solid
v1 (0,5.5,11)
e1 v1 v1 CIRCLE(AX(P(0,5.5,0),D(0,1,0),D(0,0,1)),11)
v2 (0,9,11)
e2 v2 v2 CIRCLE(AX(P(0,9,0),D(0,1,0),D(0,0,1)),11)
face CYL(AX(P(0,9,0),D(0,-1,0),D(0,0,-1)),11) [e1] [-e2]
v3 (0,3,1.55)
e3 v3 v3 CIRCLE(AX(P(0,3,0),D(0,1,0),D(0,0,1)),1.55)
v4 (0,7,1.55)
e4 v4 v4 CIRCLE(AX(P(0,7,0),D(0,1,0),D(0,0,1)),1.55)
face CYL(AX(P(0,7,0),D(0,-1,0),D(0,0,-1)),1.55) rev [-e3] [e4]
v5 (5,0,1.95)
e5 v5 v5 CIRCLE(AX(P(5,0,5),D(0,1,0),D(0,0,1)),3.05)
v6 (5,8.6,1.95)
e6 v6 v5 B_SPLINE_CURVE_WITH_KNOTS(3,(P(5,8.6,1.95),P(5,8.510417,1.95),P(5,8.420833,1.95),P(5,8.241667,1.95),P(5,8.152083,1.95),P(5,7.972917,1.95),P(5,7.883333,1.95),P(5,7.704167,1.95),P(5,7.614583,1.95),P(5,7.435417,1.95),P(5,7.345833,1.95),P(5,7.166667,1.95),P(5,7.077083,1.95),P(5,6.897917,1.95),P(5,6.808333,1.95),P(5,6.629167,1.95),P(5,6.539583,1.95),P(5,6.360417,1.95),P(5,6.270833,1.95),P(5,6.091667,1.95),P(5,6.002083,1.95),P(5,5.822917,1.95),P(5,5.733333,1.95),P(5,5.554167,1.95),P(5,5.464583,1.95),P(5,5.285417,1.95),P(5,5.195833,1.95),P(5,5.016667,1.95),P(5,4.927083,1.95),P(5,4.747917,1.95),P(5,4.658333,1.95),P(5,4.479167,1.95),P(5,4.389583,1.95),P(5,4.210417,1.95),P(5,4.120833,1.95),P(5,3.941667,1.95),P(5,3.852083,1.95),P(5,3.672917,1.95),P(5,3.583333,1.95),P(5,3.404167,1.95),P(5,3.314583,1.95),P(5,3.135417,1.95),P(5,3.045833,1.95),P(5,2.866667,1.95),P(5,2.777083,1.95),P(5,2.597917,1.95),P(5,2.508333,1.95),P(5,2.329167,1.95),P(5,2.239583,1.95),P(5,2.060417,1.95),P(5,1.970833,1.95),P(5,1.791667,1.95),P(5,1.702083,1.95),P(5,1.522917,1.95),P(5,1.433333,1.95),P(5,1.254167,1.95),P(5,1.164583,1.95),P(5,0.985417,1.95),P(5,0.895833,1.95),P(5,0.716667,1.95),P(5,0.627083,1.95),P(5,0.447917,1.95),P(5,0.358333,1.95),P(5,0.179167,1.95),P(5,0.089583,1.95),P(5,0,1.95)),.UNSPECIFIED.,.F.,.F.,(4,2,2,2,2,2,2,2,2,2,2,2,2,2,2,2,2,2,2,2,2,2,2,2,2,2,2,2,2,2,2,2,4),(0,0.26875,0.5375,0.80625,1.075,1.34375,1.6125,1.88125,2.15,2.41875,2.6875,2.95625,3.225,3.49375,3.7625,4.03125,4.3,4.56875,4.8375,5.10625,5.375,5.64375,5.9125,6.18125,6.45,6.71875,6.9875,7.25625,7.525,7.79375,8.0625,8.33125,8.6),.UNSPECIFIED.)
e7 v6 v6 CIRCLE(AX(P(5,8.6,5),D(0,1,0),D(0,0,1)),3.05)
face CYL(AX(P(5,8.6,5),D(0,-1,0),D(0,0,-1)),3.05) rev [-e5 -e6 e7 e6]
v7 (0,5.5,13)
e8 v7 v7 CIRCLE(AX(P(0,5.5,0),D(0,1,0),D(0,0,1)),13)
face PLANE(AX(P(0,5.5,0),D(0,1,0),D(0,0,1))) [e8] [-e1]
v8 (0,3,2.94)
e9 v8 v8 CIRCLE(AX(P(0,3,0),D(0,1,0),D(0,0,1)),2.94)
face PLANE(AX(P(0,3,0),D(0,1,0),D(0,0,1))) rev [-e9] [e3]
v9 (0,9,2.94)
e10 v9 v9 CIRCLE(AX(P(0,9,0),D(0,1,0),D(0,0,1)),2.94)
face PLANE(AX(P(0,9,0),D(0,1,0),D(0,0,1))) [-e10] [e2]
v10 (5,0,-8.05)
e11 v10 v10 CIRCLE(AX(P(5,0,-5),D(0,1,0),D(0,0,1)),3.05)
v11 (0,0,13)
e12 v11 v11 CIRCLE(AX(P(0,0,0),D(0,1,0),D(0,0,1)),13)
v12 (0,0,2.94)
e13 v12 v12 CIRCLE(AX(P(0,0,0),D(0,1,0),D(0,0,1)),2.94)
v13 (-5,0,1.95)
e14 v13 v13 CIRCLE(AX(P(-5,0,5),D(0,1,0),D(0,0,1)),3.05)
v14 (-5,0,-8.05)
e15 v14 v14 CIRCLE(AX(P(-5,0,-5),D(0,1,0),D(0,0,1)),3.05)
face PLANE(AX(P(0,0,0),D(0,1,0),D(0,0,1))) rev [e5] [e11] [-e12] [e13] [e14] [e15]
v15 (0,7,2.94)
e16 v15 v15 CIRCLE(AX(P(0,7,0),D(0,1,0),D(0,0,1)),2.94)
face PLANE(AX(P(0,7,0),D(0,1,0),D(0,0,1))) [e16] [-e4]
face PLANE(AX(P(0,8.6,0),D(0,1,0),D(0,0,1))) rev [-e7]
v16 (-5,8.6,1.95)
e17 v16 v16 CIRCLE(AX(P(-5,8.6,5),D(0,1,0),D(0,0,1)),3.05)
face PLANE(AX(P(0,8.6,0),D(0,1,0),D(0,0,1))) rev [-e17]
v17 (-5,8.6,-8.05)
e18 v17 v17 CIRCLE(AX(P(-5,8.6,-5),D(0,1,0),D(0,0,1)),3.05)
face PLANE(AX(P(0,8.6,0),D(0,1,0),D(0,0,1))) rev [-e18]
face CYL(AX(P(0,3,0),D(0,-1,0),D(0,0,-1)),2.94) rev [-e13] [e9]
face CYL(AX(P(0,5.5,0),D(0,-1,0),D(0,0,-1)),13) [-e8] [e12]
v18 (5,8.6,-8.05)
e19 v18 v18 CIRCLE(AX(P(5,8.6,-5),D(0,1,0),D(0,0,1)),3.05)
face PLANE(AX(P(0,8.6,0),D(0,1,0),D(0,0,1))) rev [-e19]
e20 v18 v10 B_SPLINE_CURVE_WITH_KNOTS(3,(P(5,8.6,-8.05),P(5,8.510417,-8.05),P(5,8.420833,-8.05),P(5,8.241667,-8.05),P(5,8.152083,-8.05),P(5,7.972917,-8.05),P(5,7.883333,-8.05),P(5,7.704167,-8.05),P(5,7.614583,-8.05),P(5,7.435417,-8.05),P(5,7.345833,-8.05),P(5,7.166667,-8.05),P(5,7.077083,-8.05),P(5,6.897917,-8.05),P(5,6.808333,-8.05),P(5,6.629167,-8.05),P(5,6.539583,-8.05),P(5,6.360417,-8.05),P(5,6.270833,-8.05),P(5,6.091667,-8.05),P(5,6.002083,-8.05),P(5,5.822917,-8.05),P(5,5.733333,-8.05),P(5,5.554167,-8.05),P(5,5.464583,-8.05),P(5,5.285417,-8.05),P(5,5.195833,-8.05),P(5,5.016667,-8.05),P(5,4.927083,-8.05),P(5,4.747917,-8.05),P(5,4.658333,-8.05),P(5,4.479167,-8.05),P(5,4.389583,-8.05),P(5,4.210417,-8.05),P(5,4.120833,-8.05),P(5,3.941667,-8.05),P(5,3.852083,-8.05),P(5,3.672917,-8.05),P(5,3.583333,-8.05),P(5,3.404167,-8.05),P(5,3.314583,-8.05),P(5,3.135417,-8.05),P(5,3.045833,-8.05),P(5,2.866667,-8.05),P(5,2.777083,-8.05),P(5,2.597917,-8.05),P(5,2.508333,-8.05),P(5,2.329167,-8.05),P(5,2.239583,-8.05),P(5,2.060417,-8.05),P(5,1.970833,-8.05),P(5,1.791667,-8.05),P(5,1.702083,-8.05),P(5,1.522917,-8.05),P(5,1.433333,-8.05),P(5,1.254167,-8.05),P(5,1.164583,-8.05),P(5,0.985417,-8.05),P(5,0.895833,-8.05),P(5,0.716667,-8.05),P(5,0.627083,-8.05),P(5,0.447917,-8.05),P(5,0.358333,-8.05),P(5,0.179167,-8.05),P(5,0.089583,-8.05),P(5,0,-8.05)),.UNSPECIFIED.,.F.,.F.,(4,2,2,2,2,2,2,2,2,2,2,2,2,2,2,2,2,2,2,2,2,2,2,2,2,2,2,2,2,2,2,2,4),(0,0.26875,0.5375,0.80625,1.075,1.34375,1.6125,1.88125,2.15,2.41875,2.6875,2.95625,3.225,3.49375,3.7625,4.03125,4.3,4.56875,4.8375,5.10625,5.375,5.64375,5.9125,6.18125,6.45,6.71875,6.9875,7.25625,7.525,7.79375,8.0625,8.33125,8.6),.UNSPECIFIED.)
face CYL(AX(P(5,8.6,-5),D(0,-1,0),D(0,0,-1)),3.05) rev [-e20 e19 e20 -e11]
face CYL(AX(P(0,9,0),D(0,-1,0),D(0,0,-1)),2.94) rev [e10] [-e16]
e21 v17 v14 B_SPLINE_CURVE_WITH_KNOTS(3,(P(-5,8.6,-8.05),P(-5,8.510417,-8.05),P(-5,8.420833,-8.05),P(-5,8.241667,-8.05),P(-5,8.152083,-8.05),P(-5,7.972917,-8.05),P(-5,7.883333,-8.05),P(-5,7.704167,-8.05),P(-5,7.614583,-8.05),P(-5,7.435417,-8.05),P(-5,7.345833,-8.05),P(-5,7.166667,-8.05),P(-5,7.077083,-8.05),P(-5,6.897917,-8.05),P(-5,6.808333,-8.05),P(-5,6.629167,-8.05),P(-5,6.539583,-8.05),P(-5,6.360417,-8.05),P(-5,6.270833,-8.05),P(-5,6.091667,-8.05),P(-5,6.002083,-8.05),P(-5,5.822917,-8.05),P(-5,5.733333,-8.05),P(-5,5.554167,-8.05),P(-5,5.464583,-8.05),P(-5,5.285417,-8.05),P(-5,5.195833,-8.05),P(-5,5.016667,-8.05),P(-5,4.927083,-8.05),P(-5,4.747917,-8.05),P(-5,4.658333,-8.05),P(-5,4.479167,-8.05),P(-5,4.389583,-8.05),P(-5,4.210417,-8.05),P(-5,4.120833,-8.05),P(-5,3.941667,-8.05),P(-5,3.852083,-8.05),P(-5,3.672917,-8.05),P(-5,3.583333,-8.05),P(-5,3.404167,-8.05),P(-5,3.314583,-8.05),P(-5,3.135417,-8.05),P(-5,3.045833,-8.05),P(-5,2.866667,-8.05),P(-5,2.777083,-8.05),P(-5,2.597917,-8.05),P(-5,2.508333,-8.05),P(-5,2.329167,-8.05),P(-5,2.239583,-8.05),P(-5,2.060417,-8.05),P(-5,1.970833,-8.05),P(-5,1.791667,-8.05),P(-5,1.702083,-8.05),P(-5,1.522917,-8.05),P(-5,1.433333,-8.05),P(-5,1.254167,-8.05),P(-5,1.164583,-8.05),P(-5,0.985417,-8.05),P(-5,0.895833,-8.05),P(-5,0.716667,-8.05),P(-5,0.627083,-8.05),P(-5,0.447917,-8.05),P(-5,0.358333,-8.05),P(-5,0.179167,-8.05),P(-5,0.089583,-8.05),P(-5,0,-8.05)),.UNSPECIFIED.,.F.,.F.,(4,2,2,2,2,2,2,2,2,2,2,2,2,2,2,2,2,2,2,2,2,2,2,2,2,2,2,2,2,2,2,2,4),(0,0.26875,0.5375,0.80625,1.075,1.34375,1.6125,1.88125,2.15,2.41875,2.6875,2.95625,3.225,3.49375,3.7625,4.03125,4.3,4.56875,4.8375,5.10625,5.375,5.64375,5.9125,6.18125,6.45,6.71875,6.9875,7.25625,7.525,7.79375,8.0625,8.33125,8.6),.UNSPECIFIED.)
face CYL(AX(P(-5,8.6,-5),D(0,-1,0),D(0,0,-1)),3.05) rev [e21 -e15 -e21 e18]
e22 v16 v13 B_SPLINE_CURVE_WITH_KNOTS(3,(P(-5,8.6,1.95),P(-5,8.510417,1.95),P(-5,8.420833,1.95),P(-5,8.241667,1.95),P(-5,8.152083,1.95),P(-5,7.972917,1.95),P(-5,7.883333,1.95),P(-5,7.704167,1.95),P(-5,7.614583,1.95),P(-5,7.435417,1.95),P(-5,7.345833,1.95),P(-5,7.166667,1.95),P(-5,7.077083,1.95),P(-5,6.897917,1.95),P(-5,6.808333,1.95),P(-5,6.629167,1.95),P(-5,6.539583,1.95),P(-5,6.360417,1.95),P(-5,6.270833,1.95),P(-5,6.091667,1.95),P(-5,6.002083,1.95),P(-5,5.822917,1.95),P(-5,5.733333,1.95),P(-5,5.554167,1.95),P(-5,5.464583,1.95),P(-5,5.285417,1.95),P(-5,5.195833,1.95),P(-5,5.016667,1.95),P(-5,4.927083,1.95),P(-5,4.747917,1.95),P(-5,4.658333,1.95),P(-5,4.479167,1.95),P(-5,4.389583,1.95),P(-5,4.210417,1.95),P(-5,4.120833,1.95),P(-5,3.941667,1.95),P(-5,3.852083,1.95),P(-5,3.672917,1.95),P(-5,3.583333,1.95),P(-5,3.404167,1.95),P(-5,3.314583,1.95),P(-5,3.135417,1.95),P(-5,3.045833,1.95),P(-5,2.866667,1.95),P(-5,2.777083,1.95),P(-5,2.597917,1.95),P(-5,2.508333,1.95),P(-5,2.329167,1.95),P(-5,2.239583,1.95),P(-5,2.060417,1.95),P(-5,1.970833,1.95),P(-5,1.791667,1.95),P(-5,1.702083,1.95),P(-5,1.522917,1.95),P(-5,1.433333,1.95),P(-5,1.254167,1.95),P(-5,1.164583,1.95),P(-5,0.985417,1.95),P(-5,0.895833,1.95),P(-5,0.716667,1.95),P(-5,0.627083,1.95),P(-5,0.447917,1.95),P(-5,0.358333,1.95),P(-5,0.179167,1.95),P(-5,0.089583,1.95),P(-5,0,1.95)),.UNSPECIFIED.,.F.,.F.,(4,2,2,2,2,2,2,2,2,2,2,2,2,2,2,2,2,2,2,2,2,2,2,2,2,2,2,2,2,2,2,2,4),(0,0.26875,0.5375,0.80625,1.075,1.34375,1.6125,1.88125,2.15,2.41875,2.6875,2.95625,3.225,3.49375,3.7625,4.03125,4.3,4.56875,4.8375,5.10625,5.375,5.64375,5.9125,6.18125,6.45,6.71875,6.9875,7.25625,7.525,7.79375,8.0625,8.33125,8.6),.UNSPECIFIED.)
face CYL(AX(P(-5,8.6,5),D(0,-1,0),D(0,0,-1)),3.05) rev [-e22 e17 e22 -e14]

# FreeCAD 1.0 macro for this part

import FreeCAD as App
import Part
import Sketcher

V = App.Vector
Q = App.Units.Quantity

doc = App.newDocument("Part")
body = doc.addObject("PartDesign::Body", "Body")

# Sketch on XZ plane
sketch1 = body.newObject("Sketcher::SketchObject", "Sketch")
sketch1.AttachmentSupport = (doc.getObject("XZ_Plane"), [""])
sketch1.MapMode = "FlatFace"
sketch1.addGeometry([
    Part.Circle(V(0, 0, 0), V(0, 0, 1), 11),
    Part.Circle(V(0, 0, 0), V(0, 0, 1), 2.9),
], False)
sketch1.addConstraint([
    Sketcher.Constraint("Coincident", 0, 3, -1, 1),
    Sketcher.Constraint("Coincident", 1, 3, -1, 1),
    Sketcher.Constraint("Diameter", 0, Q("22 mm")),
    Sketcher.Constraint("Diameter", 1, Q("5.88 mm")),
])
pad1 = body.newObject("PartDesign::Pad", "Pad")
pad1.Profile = sketch1
pad1.Length = 9
pad1.Reversed = True

# Sketch on XZ plane
sketch2 = body.newObject("Sketcher::SketchObject", "Sketch001")
sketch2.AttachmentSupport = (doc.getObject("XZ_Plane"), [""])
sketch2.MapMode = "FlatFace"
sketch2.addGeometry([
    Part.Circle(V(0, 0, 0), V(0, 0, 1), 2.9),
    Part.Circle(V(0, 0, 0), V(0, 0, 1), 1.6),
], False)
sketch2.addConstraint([
    Sketcher.Constraint("Coincident", 0, 3, -1, 1),
    Sketcher.Constraint("Coincident", 1, 3, -1, 1),
    Sketcher.Constraint("Diameter", 1, Q("3.1 mm")),
    Sketcher.Constraint("Diameter", 0, Q("5.88 mm")),
])
pad2 = body.newObject("PartDesign::Pad", "Pad001")
pad2.Profile = sketch2
pad2.Length = 7
pad2.Reversed = True

# Sketch on XZ plane
sketch3 = body.newObject("Sketcher::SketchObject", "Sketch002")
sketch3.AttachmentSupport = (doc.getObject("XZ_Plane"), [""])
sketch3.MapMode = "FlatFace"
sketch3.addGeometry([
    Part.Circle(V(0, 0, 0), V(0, 0, 1), 2.9),
    Part.Circle(V(0, 0, 0), V(0, 0, 1), 1.6),
], False)
sketch3.addConstraint([
    Sketcher.Constraint("Coincident", 0, 3, -1, 1),
    Sketcher.Constraint("Coincident", 1, 3, -1, 1),
    Sketcher.Constraint("Diameter", 1, Q("3.1 mm")),
    Sketcher.Constraint("Diameter", 0, Q("5.88 mm")),
])
pocket1 = body.newObject("PartDesign::Pocket", "Pocket")
pocket1.Profile = sketch3
pocket1.Length = 3

# Sketch on XZ plane
sketch4 = body.newObject("Sketcher::SketchObject", "Sketch003")
sketch4.AttachmentSupport = (doc.getObject("XZ_Plane"), [""])
sketch4.MapMode = "FlatFace"
sketch4.addGeometry([
    Part.Circle(V(5, -5, 0), V(0, 0, 1), 3),
    Part.Circle(V(5, 5, 0), V(0, 0, 1), 3),
    Part.Circle(V(-5, 5, 0), V(0, 0, 1), 3),
    Part.Circle(V(-5, -5, 0), V(0, 0, 1), 3),
], False)
sketch4.addConstraint([
    Sketcher.Constraint("Equal", 0, 1),
    Sketcher.Constraint("Equal", 1, 2),
    Sketcher.Constraint("Equal", 2, 3),
    Sketcher.Constraint("Symmetric", 0, 3, 2, 3, -1, 1),
    Sketcher.Constraint("Symmetric", 1, 3, 3, 3, -1, 1),
    Sketcher.Constraint("Symmetric", 1, 3, 2, 3, -2),
    Sketcher.Constraint("Diameter", 0, Q("6.1 mm")),
    Sketcher.Constraint("DistanceX", -1, 1, 0, 3, Q("5 mm")),
    Sketcher.Constraint("DistanceY", 0, 3, -1, 1, Q("5 mm")),
])
pocket2 = body.newObject("PartDesign::Pocket", "Pocket001")
pocket2.Profile = sketch4
pocket2.Length = 8.6

# Sketch on XZ plane
sketch5 = body.newObject("Sketcher::SketchObject", "Sketch004")
sketch5.AttachmentSupport = (doc.getObject("XZ_Plane"), [""])
sketch5.MapMode = "FlatFace"
sketch5.addGeometry([
    Part.Circle(V(0, 0, 0), V(0, 0, 1), 13),
    Part.Circle(V(0, 0, 0), V(0, 0, 1), 11),
], False)
sketch5.addConstraint([
    Sketcher.Constraint("Coincident", 0, 3, -1, 1),
    Sketcher.Constraint("Coincident", 1, 3, -1, 1),
    Sketcher.Constraint("Diameter", 0, Q("26 mm")),
    Sketcher.Constraint("Diameter", 1, Q("22 mm")),
])
pad3 = body.newObject("PartDesign::Pad", "Pad002")
pad3.Profile = sketch5
pad3.Length = 5.5
pad3.Reversed = True

doc.recompute()
